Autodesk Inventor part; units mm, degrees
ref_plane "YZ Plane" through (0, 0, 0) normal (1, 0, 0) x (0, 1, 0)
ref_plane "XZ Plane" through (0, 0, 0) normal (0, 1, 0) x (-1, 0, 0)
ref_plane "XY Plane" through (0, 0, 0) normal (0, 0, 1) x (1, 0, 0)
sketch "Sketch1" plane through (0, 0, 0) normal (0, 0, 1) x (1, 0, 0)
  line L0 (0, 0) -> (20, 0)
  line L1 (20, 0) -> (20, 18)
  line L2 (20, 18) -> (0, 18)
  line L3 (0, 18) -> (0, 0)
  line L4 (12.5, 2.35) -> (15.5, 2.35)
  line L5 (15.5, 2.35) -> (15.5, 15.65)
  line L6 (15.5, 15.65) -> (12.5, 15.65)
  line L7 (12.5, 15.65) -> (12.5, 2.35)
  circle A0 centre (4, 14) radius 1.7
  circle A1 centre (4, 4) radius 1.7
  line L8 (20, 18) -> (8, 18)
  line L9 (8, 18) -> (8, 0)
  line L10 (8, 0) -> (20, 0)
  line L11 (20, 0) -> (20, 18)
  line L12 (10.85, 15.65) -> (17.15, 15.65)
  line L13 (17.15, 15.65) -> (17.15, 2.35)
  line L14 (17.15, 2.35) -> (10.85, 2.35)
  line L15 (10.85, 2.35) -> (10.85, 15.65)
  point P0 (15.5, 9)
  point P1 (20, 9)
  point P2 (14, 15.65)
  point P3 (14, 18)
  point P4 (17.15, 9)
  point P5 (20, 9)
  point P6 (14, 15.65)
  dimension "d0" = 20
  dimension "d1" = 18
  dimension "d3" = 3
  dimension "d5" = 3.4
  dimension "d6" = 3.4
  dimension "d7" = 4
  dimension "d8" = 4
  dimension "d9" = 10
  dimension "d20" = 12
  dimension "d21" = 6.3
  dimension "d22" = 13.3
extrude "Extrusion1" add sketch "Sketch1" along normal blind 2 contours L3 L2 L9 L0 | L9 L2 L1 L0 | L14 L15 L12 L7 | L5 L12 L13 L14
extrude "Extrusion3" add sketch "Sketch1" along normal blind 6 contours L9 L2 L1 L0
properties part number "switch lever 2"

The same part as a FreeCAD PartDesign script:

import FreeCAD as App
import Part
import Sketcher
Q = App.Units.Quantity

doc = App.newDocument("Part")
body = doc.addObject("PartDesign::Body", "Body")

# Sketch on XY plane
sketch1 = body.newObject("Sketcher::SketchObject", "Sketch")
sketch1.AttachmentSupport = (doc.getObject("XY_Plane"), [""])
sketch1.MapMode = "FlatFace"
sketch1.addGeometry([
    Part.LineSegment(App.Vector(0, 18, 0), App.Vector(0, 0, 0)),  # 0
    Part.LineSegment(App.Vector(0, 0, 0), App.Vector(20, 0, 0)),  # 1
    Part.LineSegment(App.Vector(20, 0, 0), App.Vector(20, 18, 0)),  # 2
    Part.LineSegment(App.Vector(20, 18, 0), App.Vector(0, 18, 0)),  # 3
    Part.Circle(App.Vector(4, 4, 0), App.Vector(0, 0, 1), 1.7),  # 4
    Part.Circle(App.Vector(4, 14, 0), App.Vector(0, 0, 1), 1.7),  # 5
    Part.LineSegment(App.Vector(15.5, 2.4, 0), App.Vector(12.5, 2.4, 0)),  # 6
    Part.LineSegment(App.Vector(12.5, 2.4, 0), App.Vector(12.5, 15.7, 0)),  # 7
    Part.LineSegment(App.Vector(12.5, 15.7, 0), App.Vector(15.5, 15.7, 0)),  # 8
    Part.LineSegment(App.Vector(15.5, 15.7, 0), App.Vector(15.5, 2.4, 0)),  # 9
], False)
sketch1.addConstraint([
    Sketcher.Constraint("Coincident", 0, 2, 1, 1),
    Sketcher.Constraint("Coincident", 1, 2, 2, 1),
    Sketcher.Constraint("Coincident", 2, 2, 3, 1),
    Sketcher.Constraint("Coincident", 3, 2, 0, 1),
    Sketcher.Constraint("Coincident", 6, 2, 7, 1),
    Sketcher.Constraint("Coincident", 7, 2, 8, 1),
    Sketcher.Constraint("Coincident", 8, 2, 9, 1),
    Sketcher.Constraint("Coincident", 9, 2, 6, 1),
    Sketcher.Constraint("Vertical", 0),
    Sketcher.Constraint("Horizontal", 1),
    Sketcher.Constraint("Vertical", 2),
    Sketcher.Constraint("Horizontal", 3),
    Sketcher.Constraint("Horizontal", 6),
    Sketcher.Constraint("Vertical", 7),
    Sketcher.Constraint("Horizontal", 8),
    Sketcher.Constraint("Vertical", 9),
    Sketcher.Constraint("Coincident", 0, 2, -1, 1),
    Sketcher.Constraint("Equal", 4, 5),
    Sketcher.Constraint("Vertical", 4, 3, 5, 3),
    Sketcher.Constraint("Diameter", 4, Q("3.4 mm")),
    Sketcher.Constraint("DistanceX", 1, 1, 1, 2, Q("20 mm")),
    Sketcher.Constraint("DistanceX", 6, 2, 6, 1, Q("3 mm")),
    Sketcher.Constraint("DistanceY", 0, 2, 0, 1, Q("18 mm")),
    Sketcher.Constraint("DistanceY", 7, 1, 7, 2, Q("13.3 mm")),
    Sketcher.Constraint("DistanceX", -1, 1, 4, 3, Q("4 mm")),
    Sketcher.Constraint("DistanceY", -1, 1, 4, 3, Q("4 mm")),
    Sketcher.Constraint("DistanceY", 4, 3, 5, 3, Q("10 mm")),
    Sketcher.Constraint("DistanceX", -1, 1, 6, 2, Q("12.5 mm")),
    Sketcher.Constraint("DistanceY", -1, 1, 6, 2, Q("2.35 mm")),
])
pad1 = body.newObject("PartDesign::Pad", "Pad")
pad1.Profile = sketch1
pad1.Length = 2

# Sketch on XY plane
sketch2 = body.newObject("Sketcher::SketchObject", "Sketch001")
sketch2.AttachmentSupport = (doc.getObject("XY_Plane"), [""])
sketch2.MapMode = "FlatFace"
sketch2.addGeometry([
    Part.LineSegment(App.Vector(8, 18, 0), App.Vector(8, 0, 0)),  # 0
    Part.LineSegment(App.Vector(8, 0, 0), App.Vector(20, 0, 0)),  # 1
    Part.LineSegment(App.Vector(20, 0, 0), App.Vector(20, 18, 0)),  # 2
    Part.LineSegment(App.Vector(20, 18, 0), App.Vector(8, 18, 0)),  # 3
    Part.LineSegment(App.Vector(17, 2, 0), App.Vector(11, 2, 0)),  # 4
    Part.LineSegment(App.Vector(11, 2, 0), App.Vector(11, 16, 0)),  # 5
    Part.LineSegment(App.Vector(11, 16, 0), App.Vector(17, 16, 0)),  # 6
    Part.LineSegment(App.Vector(17, 16, 0), App.Vector(17, 2, 0)),  # 7
], False)
sketch2.addConstraint([
    Sketcher.Constraint("Coincident", 0, 2, 1, 1),
    Sketcher.Constraint("Coincident", 1, 2, 2, 1),
    Sketcher.Constraint("Coincident", 2, 2, 3, 1),
    Sketcher.Constraint("Coincident", 3, 2, 0, 1),
    Sketcher.Constraint("Coincident", 4, 2, 5, 1),
    Sketcher.Constraint("Coincident", 5, 2, 6, 1),
    Sketcher.Constraint("Coincident", 6, 2, 7, 1),
    Sketcher.Constraint("Coincident", 7, 2, 4, 1),
    Sketcher.Constraint("Vertical", 0),
    Sketcher.Constraint("Horizontal", 1),
    Sketcher.Constraint("Vertical", 2),
    Sketcher.Constraint("Horizontal", 3),
    Sketcher.Constraint("Horizontal", 4),
    Sketcher.Constraint("Vertical", 5),
    Sketcher.Constraint("Horizontal", 6),
    Sketcher.Constraint("Vertical", 7),
    Sketcher.Constraint("PointOnObject", 0, 2, -1),
    Sketcher.Constraint("DistanceX", 1, 1, 1, 2, Q("12 mm")),
    Sketcher.Constraint("DistanceY", 0, 2, 0, 1, Q("18 mm")),
    Sketcher.Constraint("DistanceX", 4, 2, 4, 1, Q("6.3 mm")),
    Sketcher.Constraint("DistanceY", 5, 1, 5, 2, Q("13.3 mm")),
    Sketcher.Constraint("DistanceX", -1, 1, 1, 2, Q("20 mm")),
    Sketcher.Constraint("DistanceX", -1, 1, 4, 2, Q("10.85 mm")),
    Sketcher.Constraint("DistanceY", -1, 1, 4, 2, Q("2.35 mm")),
])
pad2 = body.newObject("PartDesign::Pad", "Pad001")
pad2.Profile = sketch2
pad2.Length = 6

doc.recompute()
